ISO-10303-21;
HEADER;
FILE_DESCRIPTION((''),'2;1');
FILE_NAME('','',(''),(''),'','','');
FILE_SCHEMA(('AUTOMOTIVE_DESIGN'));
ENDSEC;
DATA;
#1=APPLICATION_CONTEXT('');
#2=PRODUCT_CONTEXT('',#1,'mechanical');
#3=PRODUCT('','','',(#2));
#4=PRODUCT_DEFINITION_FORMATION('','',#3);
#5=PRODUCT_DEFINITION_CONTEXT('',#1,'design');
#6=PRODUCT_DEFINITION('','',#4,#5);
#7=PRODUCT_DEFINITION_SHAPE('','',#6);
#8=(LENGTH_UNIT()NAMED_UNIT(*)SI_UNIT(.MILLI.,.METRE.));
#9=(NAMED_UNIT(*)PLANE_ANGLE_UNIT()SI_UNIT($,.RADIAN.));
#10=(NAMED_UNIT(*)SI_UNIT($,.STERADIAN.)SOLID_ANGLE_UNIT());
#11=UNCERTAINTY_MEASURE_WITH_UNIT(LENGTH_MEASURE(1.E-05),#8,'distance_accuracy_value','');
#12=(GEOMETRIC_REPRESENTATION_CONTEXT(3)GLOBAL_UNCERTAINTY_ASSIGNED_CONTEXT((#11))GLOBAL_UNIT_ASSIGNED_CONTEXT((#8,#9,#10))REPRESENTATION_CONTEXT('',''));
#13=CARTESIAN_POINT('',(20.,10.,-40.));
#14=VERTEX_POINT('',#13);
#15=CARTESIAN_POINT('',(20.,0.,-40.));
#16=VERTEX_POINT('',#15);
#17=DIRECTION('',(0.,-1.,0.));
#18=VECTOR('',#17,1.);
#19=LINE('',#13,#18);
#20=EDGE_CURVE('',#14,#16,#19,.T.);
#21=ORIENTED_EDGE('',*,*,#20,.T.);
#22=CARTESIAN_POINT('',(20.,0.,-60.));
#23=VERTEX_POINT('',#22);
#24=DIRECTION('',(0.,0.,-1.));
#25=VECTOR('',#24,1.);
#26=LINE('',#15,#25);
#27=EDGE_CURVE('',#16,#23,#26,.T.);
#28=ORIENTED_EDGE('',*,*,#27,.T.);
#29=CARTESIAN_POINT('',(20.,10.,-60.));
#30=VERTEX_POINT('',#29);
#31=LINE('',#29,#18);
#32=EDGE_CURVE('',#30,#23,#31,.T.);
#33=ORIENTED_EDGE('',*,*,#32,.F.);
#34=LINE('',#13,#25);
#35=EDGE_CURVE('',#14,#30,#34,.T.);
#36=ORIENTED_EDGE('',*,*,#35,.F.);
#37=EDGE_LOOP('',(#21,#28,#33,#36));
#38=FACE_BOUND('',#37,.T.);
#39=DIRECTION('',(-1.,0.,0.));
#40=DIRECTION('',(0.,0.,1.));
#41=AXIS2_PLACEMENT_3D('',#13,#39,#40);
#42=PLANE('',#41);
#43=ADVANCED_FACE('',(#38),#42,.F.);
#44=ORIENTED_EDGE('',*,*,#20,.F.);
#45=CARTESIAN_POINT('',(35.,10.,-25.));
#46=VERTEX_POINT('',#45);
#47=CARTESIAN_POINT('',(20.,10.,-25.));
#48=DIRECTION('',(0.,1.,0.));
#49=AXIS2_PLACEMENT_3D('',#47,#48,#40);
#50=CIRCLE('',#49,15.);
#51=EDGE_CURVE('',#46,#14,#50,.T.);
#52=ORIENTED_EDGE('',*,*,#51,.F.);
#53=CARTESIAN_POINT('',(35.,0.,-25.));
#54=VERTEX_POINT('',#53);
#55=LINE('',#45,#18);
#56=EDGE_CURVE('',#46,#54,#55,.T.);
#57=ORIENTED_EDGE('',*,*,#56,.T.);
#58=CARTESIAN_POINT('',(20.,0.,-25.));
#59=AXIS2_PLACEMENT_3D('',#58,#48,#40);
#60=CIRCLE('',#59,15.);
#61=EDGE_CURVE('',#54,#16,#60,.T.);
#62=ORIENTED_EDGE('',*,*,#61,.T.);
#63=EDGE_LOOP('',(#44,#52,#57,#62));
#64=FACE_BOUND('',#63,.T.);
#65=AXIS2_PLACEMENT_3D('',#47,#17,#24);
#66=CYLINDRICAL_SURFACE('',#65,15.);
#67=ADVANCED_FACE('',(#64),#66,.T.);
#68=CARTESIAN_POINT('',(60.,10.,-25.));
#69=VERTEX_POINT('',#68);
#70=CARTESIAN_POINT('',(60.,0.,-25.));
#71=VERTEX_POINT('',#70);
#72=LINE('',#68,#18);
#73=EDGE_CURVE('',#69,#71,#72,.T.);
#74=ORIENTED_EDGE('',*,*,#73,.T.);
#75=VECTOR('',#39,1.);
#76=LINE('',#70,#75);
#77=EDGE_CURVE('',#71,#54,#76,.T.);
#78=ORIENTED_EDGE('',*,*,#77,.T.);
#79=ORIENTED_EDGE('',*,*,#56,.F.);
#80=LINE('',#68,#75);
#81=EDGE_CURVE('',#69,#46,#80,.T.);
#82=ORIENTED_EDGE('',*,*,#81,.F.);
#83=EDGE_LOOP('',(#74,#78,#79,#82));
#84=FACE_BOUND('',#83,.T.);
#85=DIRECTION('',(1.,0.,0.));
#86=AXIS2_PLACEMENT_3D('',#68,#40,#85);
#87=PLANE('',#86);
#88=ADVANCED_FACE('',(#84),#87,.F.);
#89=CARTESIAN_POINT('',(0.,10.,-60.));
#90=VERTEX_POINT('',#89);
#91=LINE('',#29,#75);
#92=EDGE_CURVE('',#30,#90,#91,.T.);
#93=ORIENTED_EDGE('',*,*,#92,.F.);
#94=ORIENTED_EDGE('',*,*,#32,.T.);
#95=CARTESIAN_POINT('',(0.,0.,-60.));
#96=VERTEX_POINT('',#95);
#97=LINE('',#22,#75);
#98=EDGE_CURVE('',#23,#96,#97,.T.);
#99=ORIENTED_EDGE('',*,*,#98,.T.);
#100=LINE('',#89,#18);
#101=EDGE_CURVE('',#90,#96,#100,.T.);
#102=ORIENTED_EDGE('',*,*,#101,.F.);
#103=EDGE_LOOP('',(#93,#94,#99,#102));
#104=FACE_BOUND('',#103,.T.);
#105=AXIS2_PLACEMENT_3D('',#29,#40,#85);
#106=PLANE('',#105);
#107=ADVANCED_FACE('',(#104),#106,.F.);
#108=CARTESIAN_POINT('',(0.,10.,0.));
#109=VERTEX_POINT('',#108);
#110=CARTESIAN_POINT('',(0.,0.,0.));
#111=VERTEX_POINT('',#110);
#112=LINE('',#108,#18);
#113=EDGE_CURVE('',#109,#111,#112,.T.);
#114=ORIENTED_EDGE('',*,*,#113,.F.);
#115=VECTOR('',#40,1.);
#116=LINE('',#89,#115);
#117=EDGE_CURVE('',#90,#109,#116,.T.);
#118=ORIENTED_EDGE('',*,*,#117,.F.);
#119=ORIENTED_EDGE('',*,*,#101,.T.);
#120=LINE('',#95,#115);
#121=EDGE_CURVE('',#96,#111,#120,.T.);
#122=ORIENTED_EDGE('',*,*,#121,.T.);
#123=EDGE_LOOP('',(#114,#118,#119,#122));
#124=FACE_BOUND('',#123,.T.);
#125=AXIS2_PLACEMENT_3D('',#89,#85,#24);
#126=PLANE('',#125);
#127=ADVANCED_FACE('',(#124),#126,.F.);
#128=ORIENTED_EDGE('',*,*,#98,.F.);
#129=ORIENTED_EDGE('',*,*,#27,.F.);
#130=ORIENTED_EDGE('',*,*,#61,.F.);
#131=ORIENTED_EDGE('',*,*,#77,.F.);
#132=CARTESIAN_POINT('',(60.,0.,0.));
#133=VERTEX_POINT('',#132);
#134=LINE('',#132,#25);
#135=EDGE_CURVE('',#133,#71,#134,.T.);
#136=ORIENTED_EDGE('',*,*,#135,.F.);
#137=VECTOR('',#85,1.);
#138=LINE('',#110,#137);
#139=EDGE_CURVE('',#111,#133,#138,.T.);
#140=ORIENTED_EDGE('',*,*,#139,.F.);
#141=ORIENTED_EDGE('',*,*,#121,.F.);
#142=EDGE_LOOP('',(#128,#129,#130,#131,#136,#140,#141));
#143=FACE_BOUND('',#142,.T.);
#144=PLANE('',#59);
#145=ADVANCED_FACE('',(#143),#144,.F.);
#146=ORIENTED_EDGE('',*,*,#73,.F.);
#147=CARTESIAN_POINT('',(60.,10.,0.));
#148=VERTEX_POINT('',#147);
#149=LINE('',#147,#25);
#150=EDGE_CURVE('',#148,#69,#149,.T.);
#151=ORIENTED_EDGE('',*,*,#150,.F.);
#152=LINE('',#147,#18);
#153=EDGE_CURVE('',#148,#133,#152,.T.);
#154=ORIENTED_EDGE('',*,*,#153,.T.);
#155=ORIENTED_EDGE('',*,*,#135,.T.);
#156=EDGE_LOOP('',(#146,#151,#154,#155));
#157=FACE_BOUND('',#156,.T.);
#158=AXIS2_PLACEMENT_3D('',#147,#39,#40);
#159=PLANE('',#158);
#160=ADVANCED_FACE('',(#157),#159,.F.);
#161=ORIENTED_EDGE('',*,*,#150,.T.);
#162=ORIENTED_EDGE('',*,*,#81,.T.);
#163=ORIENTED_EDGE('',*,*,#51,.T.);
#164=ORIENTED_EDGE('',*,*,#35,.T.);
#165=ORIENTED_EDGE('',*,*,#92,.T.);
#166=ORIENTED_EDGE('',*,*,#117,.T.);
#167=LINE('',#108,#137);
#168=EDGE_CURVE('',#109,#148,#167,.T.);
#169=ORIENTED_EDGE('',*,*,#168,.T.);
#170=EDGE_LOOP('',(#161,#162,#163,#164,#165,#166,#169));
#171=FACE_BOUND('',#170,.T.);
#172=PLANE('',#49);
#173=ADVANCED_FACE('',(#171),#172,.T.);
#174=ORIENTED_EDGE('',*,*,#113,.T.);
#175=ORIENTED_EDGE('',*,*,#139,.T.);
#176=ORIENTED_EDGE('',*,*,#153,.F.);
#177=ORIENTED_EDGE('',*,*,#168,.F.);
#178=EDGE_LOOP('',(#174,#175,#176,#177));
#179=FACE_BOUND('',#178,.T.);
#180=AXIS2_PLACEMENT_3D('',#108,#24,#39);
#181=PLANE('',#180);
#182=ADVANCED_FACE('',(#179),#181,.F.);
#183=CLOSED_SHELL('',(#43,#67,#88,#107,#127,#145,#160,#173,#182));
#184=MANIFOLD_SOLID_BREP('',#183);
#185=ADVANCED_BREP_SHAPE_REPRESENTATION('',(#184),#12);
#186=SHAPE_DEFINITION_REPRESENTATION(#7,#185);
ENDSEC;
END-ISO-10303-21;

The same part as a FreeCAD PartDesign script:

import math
import FreeCAD as App
import Part
import Sketcher
from FreeCAD import Vector
Q = App.Units.Quantity

doc = App.newDocument("Part")
params = doc.addObject("Spreadsheet::Sheet", "Params")
for row, (alias, value) in enumerate([
    ("sketch1_radius", "15 mm"),
    ("sketch1_width", "60 mm"),
    ("sketch1_width2", "25 mm"),
    ("pad1_length", "10 mm"),
], start=1):
    params.set(f"A{row}", alias)
    params.set(f"B{row}", "=" + value)
    params.setAlias(f"B{row}", alias)

body = doc.addObject("PartDesign::Body", "Body")

sketch1 = body.newObject("Sketcher::SketchObject", "Sketch")
sketch1.AttachmentSupport = (doc.getObject("XZ_Plane"), [""])
sketch1.MapMode = "FlatFace"
sketch1.addGeometry([
    Part.LineSegment(Vector(0, 0, 0), Vector(60, 0, 0)),
    Part.LineSegment(Vector(60, 0, 0), Vector(60, -25, 0)),
    Part.LineSegment(Vector(60, -25, 0), Vector(35, -25, 0)),
    Part.ArcOfCircle(Part.Circle(Vector(20, -25, 0), Vector(0, 0, 1), 15), math.radians(-90), math.radians(0)),
    Part.LineSegment(Vector(20, -40, 0), Vector(20, -60, 0)),
    Part.LineSegment(Vector(20, -60, 0), Vector(0, -60, 0)),
    Part.LineSegment(Vector(0, -60, 0), Vector(0, 0, 0)),
], False)
sketch1.addConstraint([
    Sketcher.Constraint("Coincident", 0, 2, 1, 1),
    Sketcher.Constraint("Coincident", 1, 2, 2, 1),
    Sketcher.Constraint("Coincident", 2, 2, 3, 2),
    Sketcher.Constraint("Coincident", 3, 1, 4, 1),
    Sketcher.Constraint("Coincident", 4, 2, 5, 1),
    Sketcher.Constraint("Coincident", 5, 2, 6, 1),
    Sketcher.Constraint("Coincident", 6, 2, 0, 1),
    Sketcher.Constraint("Horizontal", 0),
    Sketcher.Constraint("Vertical", 1),
    Sketcher.Constraint("Horizontal", 2),
    Sketcher.Constraint("Vertical", 4),
    Sketcher.Constraint("Horizontal", 5),
    Sketcher.Constraint("Vertical", 6),
    Sketcher.Constraint("Coincident", 6, 2, -1, 1),
    Sketcher.Constraint("Horizontal", 3, 3, 1, 2),
    Sketcher.Constraint("Equal", 2, 1),
    Sketcher.Constraint("Equal", 5, 4),
    Sketcher.Constraint("Equal", 0, 6),
    Sketcher.Constraint("Radius", 3, Q("15 mm")),
    Sketcher.Constraint("DistanceX", 0, 1, 0, 2, Q("60 mm")),
    Sketcher.Constraint("DistanceX", 2, 2, 2, 1, Q("25 mm")),
])
sketch1.setExpression("Constraints[18]", "Params.sketch1_radius")
sketch1.setExpression("Constraints[19]", "Params.sketch1_width")
sketch1.setExpression("Constraints[20]", "Params.sketch1_width2")
pad1 = body.newObject("PartDesign::Pad", "Pad")
pad1.Profile = sketch1
pad1.setExpression("Length", "Params.pad1_length")
pad1.Reversed = True

doc.recompute()
